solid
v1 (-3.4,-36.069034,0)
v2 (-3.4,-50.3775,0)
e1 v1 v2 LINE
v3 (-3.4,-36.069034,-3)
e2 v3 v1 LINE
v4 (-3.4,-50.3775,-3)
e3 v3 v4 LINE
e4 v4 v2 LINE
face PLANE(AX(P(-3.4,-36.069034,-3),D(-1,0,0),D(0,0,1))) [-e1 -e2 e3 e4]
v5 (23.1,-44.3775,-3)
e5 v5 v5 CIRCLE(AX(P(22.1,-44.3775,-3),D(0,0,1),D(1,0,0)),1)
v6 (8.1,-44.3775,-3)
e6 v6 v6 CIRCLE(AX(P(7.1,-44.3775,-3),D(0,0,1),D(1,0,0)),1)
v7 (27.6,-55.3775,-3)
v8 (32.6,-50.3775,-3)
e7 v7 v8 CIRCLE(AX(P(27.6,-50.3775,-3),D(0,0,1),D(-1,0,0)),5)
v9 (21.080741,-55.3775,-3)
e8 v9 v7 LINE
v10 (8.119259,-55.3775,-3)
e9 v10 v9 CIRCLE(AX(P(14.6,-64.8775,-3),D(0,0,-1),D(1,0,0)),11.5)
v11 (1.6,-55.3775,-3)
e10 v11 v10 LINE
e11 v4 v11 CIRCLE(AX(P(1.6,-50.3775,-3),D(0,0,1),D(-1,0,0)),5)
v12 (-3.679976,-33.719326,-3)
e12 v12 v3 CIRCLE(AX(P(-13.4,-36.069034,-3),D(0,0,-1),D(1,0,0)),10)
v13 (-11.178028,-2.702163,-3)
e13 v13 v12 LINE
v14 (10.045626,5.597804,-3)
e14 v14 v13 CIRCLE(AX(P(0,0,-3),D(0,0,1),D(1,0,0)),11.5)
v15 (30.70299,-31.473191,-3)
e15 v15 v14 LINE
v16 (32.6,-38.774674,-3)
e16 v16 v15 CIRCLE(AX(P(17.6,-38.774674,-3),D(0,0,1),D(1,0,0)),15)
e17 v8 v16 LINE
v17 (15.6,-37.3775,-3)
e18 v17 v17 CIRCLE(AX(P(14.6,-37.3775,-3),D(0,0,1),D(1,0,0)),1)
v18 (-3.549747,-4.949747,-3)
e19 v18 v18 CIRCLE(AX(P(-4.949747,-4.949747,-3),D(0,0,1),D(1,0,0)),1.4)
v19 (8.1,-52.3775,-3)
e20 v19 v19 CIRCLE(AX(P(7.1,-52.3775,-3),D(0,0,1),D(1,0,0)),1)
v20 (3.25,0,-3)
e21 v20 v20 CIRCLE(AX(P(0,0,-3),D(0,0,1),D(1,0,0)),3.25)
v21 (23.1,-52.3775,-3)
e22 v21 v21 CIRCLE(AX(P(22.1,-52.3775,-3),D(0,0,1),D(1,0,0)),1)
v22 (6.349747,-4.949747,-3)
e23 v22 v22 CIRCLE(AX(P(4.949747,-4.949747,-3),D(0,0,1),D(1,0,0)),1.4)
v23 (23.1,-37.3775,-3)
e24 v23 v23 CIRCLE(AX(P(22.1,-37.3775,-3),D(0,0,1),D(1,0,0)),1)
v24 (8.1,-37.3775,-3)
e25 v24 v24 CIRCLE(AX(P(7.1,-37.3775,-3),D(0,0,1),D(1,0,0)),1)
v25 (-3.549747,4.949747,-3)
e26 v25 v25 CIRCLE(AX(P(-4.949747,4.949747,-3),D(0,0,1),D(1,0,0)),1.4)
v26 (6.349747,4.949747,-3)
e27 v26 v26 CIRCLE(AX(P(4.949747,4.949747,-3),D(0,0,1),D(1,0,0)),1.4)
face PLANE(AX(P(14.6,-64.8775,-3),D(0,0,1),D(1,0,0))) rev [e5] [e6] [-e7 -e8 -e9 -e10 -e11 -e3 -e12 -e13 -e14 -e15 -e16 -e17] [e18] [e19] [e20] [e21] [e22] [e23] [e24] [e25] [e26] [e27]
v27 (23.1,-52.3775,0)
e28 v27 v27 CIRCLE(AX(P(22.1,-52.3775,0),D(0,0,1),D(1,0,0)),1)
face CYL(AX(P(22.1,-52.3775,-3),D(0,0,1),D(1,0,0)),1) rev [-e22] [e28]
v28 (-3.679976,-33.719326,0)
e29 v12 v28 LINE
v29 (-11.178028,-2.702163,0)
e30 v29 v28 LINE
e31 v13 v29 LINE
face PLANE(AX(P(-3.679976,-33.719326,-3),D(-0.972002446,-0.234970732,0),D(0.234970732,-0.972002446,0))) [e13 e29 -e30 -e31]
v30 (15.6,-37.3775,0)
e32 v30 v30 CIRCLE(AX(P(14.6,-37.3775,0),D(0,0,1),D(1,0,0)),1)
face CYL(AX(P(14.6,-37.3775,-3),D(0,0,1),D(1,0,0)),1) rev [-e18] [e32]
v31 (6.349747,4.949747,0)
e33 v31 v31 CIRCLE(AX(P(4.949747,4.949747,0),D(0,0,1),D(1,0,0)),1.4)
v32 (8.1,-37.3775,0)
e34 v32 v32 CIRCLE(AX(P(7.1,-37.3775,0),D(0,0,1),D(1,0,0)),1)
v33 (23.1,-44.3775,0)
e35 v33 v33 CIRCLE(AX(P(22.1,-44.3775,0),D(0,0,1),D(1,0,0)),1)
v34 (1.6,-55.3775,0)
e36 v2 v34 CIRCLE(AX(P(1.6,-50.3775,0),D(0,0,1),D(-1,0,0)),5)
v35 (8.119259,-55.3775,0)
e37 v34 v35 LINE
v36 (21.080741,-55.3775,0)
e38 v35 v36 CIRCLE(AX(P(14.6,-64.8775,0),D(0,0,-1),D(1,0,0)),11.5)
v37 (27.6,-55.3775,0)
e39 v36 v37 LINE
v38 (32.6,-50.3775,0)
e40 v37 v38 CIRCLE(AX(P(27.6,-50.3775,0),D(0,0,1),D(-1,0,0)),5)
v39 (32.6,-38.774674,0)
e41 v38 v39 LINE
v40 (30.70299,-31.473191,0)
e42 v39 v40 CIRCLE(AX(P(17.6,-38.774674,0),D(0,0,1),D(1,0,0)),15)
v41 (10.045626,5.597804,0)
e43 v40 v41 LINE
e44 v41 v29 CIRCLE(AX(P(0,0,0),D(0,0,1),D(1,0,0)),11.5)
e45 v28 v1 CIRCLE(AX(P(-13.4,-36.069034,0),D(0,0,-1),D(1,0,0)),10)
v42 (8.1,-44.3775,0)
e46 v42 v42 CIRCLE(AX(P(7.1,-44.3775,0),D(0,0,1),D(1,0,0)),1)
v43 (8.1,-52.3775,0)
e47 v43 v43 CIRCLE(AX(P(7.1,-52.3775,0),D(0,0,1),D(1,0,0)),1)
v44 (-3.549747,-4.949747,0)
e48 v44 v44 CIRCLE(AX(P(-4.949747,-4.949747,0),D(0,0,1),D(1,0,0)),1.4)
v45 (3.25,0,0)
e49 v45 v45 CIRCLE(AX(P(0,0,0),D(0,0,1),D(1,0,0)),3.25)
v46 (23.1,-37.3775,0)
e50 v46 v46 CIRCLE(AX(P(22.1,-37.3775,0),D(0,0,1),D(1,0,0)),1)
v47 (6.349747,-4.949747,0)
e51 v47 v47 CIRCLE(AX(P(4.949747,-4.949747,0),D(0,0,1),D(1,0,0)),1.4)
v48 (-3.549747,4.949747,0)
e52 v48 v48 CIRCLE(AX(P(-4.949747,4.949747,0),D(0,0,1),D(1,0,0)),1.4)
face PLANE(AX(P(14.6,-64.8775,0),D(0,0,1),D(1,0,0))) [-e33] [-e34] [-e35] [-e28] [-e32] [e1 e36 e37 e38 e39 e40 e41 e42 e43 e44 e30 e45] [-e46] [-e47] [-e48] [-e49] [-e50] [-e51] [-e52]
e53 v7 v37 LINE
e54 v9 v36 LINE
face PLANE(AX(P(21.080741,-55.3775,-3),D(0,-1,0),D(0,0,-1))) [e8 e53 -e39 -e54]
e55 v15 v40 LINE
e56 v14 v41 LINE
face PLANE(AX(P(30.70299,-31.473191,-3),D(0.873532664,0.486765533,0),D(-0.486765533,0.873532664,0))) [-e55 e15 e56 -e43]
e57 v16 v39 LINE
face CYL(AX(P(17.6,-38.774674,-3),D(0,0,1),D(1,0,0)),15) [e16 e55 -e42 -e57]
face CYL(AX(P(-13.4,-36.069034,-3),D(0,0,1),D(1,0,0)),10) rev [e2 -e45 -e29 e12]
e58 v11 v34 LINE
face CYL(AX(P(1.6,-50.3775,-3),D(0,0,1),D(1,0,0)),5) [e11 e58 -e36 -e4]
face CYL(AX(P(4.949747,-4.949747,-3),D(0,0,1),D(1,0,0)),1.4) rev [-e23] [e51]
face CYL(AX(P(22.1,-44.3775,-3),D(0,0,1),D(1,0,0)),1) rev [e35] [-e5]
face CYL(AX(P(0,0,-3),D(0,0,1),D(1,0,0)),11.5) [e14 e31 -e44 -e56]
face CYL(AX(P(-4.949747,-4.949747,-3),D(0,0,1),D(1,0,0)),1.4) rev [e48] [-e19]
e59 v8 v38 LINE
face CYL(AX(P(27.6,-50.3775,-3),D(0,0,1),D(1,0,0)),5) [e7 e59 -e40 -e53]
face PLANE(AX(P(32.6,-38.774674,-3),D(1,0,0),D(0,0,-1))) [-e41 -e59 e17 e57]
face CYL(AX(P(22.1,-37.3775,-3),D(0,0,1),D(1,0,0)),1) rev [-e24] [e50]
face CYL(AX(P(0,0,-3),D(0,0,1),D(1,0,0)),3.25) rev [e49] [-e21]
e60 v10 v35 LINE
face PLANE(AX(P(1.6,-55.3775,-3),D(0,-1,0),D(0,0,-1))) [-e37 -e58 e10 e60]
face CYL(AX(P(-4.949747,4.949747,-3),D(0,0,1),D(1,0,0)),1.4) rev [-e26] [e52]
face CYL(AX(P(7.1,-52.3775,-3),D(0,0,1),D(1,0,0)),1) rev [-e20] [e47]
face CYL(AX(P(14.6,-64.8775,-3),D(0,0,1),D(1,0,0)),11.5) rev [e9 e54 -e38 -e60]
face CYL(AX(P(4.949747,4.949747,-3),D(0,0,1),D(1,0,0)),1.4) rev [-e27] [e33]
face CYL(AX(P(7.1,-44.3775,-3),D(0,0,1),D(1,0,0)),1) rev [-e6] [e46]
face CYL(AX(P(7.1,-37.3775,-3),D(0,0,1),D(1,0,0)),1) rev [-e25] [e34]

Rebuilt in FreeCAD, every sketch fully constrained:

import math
import FreeCAD as App
import Part
import Sketcher
Q = App.Units.Quantity

doc = App.newDocument("Part")
body = doc.addObject("PartDesign::Body", "Body")

# Sketch on XY plane
sketch1 = body.newObject("Sketcher::SketchObject", "Sketch")
sketch1.AttachmentSupport = (doc.getObject("XY_Plane"), [""])
sketch1.MapMode = "FlatFace"
sketch1.addGeometry([
    Part.LineSegment(App.Vector(1.6, -55.4, 0), App.Vector(8.1, -55.4, 0)),  # 0
    Part.ArcOfCircle(Part.Circle(App.Vector(14.6, -64.9, 0), App.Vector(0, 0, 1), 11.5), math.radians(56), math.radians(124)),  # 1
    Part.LineSegment(App.Vector(21.1, -55.4, 0), App.Vector(27.6, -55.4, 0)),  # 2
    Part.ArcOfCircle(Part.Circle(App.Vector(27.6, -50.4, 0), App.Vector(0, 0, 1), 5), math.radians(-90), math.radians(0)),  # 3
    Part.LineSegment(App.Vector(32.6, -50.4, 0), App.Vector(32.6, -38.8, 0)),  # 4
    Part.ArcOfCircle(Part.Circle(App.Vector(17.6, -38.8, 0), App.Vector(0, 0, 1), 15), math.radians(0), math.radians(29)),  # 5
    Part.LineSegment(App.Vector(30.7, -31.5, 0), App.Vector(10, 5.6, 0)),  # 6
    Part.ArcOfCircle(Part.Circle(App.Vector(0, 0, 0), App.Vector(0, 0, 1), 11.5), math.radians(29), math.radians(194)),  # 7
    Part.LineSegment(App.Vector(-11.2, -2.7, 0), App.Vector(-3.7, -33.7, 0)),  # 8
    Part.ArcOfCircle(Part.Circle(App.Vector(-13.4, -36.1, 0), App.Vector(0, 0, 1), 10), math.radians(0), math.radians(13.59)),  # 9
    Part.LineSegment(App.Vector(-3.4, -36.1, 0), App.Vector(-3.4, -50.4, 0)),  # 10
    Part.ArcOfCircle(Part.Circle(App.Vector(1.6, -50.4, 0), App.Vector(0, 0, 1), 5), math.radians(180), math.radians(270)),  # 11
    Part.Circle(App.Vector(7.1, -52.4, 0), App.Vector(0, 0, 1), 1),  # 12
    Part.Circle(App.Vector(7.1, -44.4, 0), App.Vector(0, 0, 1), 1),  # 13
    Part.Circle(App.Vector(7.1, -37.4, 0), App.Vector(0, 0, 1), 1),  # 14
    Part.Circle(App.Vector(22.1, -52.4, 0), App.Vector(0, 0, 1), 1),  # 15
    Part.Circle(App.Vector(22.1, -44.4, 0), App.Vector(0, 0, 1), 1),  # 16
    Part.Circle(App.Vector(14.6, -37.4, 0), App.Vector(0, 0, 1), 1),  # 17
    Part.Circle(App.Vector(22.1, -37.4, 0), App.Vector(0, 0, 1), 1),  # 18
    Part.Circle(App.Vector(-4.9, -4.9, 0), App.Vector(0, 0, 1), 1.4),  # 19
    Part.Circle(App.Vector(-4.9, 4.9, 0), App.Vector(0, 0, 1), 1.4),  # 20
    Part.Circle(App.Vector(0, 0, 0), App.Vector(0, 0, 1), 3.2),  # 21
    Part.Circle(App.Vector(4.9, -4.9, 0), App.Vector(0, 0, 1), 1.4),  # 22
    Part.Circle(App.Vector(4.9, 4.9, 0), App.Vector(0, 0, 1), 1.4),  # 23
], False)
sketch1.addConstraint([
    Sketcher.Constraint("Coincident", 0, 2, 1, 2),
    Sketcher.Constraint("Coincident", 1, 1, 2, 1),
    Sketcher.Constraint("Tangent", 2, 2, 3, 1),
    Sketcher.Constraint("Tangent", 3, 2, 4, 1),
    Sketcher.Constraint("Tangent", 4, 2, 5, 1),
    Sketcher.Constraint("Tangent", 5, 2, 6, 1),
    Sketcher.Constraint("Tangent", 6, 2, 7, 1),
    Sketcher.Constraint("Tangent", 7, 2, 8, 1),
    Sketcher.Constraint("Tangent", 8, 2, 9, 2),
    Sketcher.Constraint("Tangent", 9, 1, 10, 1),
    Sketcher.Constraint("Tangent", 10, 2, 11, 1),
    Sketcher.Constraint("Tangent", 11, 2, 0, 1),
    Sketcher.Constraint("Horizontal", 0),
    Sketcher.Constraint("Horizontal", 2),
    Sketcher.Constraint("Vertical", 4),
    Sketcher.Constraint("Vertical", 10),
    Sketcher.Constraint("Coincident", 7, 3, -1, 1),
    Sketcher.Constraint("Coincident", 21, 3, -1, 1),
    Sketcher.Constraint("Equal", 1, 7),
    Sketcher.Constraint("Equal", 3, 11),
    Sketcher.Constraint("Equal", 12, 13),
    Sketcher.Constraint("Equal", 13, 14),
    Sketcher.Constraint("Equal", 14, 15),
    Sketcher.Constraint("Equal", 15, 16),
    Sketcher.Constraint("Equal", 16, 17),
    Sketcher.Constraint("Equal", 17, 18),
    Sketcher.Constraint("Equal", 19, 20),
    Sketcher.Constraint("Equal", 20, 22),
    Sketcher.Constraint("Equal", 22, 23),
    Sketcher.Constraint("Symmetric", 20, 3, 22, 3, -1, 1),
    Sketcher.Constraint("Symmetric", 19, 3, 23, 3, -1, 1),
    Sketcher.Constraint("Symmetric", 19, 3, 22, 3, -2),
    Sketcher.Constraint("Horizontal", 3, 3, 11, 3),
    Sketcher.Constraint("Horizontal", 12, 3, 15, 3),
    Sketcher.Constraint("Horizontal", 13, 3, 16, 3),
    Sketcher.Constraint("Horizontal", 14, 3, 17, 3),
    Sketcher.Constraint("Horizontal", 17, 3, 18, 3),
    Sketcher.Constraint("Vertical", 12, 3, 13, 3),
    Sketcher.Constraint("Vertical", 13, 3, 14, 3),
    Sketcher.Constraint("Vertical", 15, 3, 16, 3),
    Sketcher.Constraint("Vertical", 1, 3, 17, 3),
    Sketcher.Constraint("Vertical", 16, 3, 18, 3),
    Sketcher.Constraint("Equal", 0, 2),
    Sketcher.Constraint("Diameter", 12, Q("2 mm")),
    Sketcher.Constraint("Radius", 3, Q("5 mm")),
    Sketcher.Constraint("Radius", 5, Q("15 mm")),
    Sketcher.Constraint("Radius", 9, Q("10 mm")),
    Sketcher.Constraint("Diameter", 19, Q("2.8 mm")),
    Sketcher.Constraint("Diameter", 21, Q("6.5 mm")),
    Sketcher.Constraint("Radius", 1, Q("11.5 mm")),
    Sketcher.Constraint("DistanceX", 1, 3, 3, 3, Q("13 mm")),
    Sketcher.Constraint("DistanceY", 12, 3, 11, 3, Q("2 mm")),
    Sketcher.Constraint("DistanceY", 12, 3, 13, 3, Q("8 mm")),
    Sketcher.Constraint("DistanceY", 13, 3, 14, 3, Q("7 mm")),
    Sketcher.Constraint("DistanceX", 12, 3, 15, 3, Q("15 mm")),
    Sketcher.Constraint("DistanceX", -1, 1, 1, 3, Q("14.6 mm")),
    Sketcher.Constraint("DistanceX", -1, 1, 12, 3, Q("7.1 mm")),
    Sketcher.Constraint("DistanceY", 1, 3, 3, 3, Q("14.5 mm")),
    Sketcher.Constraint("DistanceY", 1, 3, -1, 1, Q("64.8775 mm")),
    Sketcher.Constraint("Distance", 8, Q("31.910581 mm")),
    Sketcher.Constraint("DistanceY", 4, 1, 4, 2, Q("11.602826 mm")),
    Sketcher.Constraint("DistanceY", 9, 3, 20, 3, Q("41.018781 mm")),
    Sketcher.Constraint("DistanceX", 23, 3, 6, 2, Q("5.095878 mm")),
])
pad1 = body.newObject("PartDesign::Pad", "Pad")
pad1.Profile = sketch1
pad1.Length = 3
pad1.Reversed = True

doc.recompute()
